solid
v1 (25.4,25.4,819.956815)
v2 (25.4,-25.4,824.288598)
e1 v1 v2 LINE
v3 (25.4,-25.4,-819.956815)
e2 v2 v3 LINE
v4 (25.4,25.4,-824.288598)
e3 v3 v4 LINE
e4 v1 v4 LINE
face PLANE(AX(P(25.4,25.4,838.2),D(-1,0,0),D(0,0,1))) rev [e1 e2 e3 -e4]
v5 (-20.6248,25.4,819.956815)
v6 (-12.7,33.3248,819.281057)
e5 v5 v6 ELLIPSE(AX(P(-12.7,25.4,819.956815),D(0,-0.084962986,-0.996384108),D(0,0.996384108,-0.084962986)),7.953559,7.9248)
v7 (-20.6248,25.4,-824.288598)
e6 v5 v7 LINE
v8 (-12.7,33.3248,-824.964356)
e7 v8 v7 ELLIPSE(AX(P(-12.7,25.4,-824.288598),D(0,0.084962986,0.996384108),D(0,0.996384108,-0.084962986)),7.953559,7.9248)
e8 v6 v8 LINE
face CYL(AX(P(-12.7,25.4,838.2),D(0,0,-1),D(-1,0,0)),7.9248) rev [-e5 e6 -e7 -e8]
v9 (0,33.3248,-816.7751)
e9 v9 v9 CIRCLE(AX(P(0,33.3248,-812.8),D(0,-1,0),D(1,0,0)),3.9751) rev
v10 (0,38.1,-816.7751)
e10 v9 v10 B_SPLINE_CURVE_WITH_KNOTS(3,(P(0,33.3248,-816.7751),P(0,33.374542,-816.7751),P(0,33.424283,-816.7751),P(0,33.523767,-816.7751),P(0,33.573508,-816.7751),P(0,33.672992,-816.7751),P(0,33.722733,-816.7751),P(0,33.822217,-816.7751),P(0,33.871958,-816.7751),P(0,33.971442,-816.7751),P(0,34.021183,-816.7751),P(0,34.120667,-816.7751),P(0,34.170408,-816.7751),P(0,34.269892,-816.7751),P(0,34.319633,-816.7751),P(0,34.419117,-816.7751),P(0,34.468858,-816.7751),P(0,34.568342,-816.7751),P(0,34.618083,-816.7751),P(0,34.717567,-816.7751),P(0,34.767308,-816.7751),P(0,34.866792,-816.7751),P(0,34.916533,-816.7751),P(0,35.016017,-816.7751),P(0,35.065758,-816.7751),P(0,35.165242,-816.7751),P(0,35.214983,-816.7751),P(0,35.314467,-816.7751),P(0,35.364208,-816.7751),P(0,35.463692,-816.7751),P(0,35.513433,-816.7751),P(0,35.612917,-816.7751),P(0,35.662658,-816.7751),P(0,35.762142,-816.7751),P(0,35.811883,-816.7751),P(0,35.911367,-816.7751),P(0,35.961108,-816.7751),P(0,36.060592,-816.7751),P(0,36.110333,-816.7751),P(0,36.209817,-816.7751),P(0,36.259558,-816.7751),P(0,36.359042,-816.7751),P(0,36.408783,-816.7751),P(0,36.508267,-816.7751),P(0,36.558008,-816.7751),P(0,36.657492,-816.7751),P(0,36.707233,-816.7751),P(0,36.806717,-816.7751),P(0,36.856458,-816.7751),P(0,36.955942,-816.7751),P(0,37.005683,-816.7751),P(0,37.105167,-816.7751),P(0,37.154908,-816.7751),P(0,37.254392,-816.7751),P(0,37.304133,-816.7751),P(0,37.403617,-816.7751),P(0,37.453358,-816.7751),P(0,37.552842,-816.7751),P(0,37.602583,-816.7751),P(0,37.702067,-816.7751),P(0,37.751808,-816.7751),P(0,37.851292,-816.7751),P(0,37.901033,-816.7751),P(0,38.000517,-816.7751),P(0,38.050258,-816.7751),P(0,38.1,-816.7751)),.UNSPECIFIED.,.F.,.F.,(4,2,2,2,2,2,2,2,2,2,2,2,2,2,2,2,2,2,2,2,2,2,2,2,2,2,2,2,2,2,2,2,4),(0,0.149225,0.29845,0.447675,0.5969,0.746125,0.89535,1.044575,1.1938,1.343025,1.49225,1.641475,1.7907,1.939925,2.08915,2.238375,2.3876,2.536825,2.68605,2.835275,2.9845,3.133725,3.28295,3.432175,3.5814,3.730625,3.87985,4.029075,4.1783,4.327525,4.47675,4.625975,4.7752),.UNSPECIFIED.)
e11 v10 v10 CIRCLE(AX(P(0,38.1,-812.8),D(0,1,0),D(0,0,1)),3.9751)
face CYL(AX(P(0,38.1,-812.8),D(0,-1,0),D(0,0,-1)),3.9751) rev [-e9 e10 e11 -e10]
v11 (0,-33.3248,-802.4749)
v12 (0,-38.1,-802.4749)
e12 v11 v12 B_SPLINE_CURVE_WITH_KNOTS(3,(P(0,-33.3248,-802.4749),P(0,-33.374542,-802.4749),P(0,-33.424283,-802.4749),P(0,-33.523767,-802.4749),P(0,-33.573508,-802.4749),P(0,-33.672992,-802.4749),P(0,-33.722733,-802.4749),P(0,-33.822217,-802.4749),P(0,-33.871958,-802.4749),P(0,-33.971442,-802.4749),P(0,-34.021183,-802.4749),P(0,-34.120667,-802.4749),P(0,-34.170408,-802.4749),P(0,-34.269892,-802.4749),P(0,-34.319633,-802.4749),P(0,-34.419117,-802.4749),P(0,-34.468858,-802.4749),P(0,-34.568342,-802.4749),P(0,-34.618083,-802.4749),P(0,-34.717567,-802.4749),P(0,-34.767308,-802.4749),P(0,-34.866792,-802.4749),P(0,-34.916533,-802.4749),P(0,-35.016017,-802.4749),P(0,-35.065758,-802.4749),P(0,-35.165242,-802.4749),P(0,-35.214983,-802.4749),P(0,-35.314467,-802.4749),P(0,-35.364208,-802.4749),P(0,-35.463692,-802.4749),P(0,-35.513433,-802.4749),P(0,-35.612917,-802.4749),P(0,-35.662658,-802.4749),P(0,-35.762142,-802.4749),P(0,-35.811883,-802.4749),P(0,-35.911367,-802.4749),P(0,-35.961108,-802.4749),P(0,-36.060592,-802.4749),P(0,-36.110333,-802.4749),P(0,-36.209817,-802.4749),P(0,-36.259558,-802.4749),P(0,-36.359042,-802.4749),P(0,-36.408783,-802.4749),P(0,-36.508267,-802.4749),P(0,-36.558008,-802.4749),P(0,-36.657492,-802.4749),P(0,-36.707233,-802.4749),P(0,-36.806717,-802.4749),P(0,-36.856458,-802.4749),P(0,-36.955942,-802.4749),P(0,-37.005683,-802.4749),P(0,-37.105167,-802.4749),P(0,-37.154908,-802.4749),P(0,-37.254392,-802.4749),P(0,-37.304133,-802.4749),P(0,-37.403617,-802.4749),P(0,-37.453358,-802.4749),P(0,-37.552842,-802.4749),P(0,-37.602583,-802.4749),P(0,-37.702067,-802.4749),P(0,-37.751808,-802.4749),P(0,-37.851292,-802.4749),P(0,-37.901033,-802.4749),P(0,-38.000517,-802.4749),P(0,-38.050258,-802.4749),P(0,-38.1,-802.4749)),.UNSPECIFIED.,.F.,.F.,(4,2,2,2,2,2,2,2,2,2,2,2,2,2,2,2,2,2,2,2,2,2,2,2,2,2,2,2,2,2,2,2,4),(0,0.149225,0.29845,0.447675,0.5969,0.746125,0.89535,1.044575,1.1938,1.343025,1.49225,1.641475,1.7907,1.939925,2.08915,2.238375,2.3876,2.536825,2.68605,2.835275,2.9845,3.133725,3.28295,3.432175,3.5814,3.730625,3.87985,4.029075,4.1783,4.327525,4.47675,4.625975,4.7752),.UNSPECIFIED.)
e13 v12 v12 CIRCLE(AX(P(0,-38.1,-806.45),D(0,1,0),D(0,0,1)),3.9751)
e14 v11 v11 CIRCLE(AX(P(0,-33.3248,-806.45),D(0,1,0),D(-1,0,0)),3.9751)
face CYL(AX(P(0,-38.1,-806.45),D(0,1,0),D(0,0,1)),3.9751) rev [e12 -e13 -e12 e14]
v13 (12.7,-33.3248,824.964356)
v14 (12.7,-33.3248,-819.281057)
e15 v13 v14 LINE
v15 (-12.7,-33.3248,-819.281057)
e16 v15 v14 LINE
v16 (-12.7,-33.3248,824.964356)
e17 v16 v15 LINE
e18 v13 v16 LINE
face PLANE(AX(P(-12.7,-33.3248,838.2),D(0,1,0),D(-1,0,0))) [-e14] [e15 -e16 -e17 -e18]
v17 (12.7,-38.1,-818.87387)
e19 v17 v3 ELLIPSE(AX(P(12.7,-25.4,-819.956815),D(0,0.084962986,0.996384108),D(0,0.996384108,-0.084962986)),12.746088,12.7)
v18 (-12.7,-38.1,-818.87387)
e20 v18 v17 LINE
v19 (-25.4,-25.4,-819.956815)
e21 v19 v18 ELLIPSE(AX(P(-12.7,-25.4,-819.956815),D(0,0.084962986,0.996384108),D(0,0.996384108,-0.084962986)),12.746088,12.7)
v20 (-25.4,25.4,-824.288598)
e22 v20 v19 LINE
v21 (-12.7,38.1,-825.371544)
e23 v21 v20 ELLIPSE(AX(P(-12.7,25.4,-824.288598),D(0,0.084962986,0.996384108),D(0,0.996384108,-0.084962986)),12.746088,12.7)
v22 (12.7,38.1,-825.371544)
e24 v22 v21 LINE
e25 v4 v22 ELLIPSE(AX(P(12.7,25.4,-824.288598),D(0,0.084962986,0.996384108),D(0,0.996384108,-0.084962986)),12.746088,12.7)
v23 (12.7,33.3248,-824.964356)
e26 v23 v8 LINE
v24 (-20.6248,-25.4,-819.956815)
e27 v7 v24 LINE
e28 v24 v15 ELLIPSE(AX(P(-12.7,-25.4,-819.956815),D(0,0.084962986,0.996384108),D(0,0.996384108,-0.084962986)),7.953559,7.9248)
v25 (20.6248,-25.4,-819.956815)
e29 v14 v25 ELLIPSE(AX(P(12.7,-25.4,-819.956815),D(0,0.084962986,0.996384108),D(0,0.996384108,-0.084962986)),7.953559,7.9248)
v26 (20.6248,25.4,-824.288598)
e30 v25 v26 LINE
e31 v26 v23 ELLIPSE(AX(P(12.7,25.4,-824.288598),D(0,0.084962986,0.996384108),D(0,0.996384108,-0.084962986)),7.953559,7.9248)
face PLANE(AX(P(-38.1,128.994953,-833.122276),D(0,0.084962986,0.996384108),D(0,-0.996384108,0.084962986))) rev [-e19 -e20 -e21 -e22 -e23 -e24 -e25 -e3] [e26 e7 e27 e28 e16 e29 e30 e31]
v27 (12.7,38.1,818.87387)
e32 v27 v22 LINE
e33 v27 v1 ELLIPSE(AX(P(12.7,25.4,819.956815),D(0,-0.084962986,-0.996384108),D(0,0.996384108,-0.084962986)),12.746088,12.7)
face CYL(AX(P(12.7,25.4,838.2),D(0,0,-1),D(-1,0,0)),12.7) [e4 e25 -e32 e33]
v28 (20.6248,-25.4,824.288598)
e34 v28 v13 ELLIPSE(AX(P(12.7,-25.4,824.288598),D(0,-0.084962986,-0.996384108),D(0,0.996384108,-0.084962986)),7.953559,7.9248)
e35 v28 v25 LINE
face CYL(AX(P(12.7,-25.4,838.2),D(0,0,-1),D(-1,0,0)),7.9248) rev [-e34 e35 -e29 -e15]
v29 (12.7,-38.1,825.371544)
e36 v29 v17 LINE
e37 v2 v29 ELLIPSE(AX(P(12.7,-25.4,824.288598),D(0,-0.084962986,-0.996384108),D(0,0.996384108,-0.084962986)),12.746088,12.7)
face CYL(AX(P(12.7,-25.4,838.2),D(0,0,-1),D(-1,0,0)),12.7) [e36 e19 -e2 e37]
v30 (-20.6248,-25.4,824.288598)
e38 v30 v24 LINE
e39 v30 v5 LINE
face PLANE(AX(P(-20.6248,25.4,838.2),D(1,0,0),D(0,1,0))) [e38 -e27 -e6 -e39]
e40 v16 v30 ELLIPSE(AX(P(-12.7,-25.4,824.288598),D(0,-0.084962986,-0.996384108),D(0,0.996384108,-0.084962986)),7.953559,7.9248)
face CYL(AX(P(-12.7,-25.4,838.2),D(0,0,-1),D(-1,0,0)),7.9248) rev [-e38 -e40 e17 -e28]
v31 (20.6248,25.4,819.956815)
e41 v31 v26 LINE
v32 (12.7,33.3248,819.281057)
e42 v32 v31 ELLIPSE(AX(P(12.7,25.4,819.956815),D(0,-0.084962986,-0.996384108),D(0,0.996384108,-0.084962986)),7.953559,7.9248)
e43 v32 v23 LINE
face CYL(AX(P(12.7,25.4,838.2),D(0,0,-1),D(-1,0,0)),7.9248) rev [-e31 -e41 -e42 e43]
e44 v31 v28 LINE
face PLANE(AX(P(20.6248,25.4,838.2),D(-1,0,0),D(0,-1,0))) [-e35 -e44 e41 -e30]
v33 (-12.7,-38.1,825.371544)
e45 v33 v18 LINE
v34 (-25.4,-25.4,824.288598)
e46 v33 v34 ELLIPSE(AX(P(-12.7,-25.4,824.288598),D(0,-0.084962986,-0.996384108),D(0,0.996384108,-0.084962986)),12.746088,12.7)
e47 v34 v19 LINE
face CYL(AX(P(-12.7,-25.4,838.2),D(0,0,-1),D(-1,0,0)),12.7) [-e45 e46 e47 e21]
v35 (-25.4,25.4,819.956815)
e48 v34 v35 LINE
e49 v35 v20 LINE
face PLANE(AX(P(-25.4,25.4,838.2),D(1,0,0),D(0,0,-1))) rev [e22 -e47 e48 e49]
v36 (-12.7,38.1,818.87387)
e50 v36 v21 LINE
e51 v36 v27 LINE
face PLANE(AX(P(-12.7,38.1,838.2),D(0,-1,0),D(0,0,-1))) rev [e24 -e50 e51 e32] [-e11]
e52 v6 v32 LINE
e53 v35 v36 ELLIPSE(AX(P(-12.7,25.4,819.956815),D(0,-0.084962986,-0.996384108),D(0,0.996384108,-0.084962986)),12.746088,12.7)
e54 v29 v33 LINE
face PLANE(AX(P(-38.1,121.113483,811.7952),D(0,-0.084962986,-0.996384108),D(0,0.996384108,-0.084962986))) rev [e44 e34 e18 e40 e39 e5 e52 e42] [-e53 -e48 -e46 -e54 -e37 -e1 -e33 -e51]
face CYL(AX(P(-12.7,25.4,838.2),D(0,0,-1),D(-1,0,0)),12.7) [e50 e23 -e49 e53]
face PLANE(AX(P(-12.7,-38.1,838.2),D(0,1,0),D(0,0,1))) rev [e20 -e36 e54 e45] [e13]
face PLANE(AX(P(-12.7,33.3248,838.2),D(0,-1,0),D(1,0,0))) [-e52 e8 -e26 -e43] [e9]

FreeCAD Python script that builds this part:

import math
import FreeCAD as App
import Part
import Sketcher
Q = App.Units.Quantity


def add_polygon(sketch, points):
    """Adds a closed chain of lines whose ends are joined by coincident constraints."""
    first, n = sketch.GeometryCount, len(points)
    for a, b in zip(points, points[1:] + points[:1]):
        sketch.addGeometry(Part.LineSegment(App.Vector(*a, 0), App.Vector(*b, 0)), False)
    for i in range(n):
        sketch.addConstraint(Sketcher.Constraint("Coincident", first + i, 2, first + (i + 1) % n, 1))

doc = App.newDocument("Part")
params = doc.addObject("Spreadsheet::Sheet", "Params")
for row, (alias, value) in enumerate([
    ("sketch1_radius", "0.5 in"),
    ("sketch1_width", "1 in"),
    ("sketch1_height", "2 in"),
    ("sketch1_radius2", "0.312 in"),
    ("pad1_length", "66 in"),
    ("sketch2_height", "1 in"),
    ("pocket1_length", "3 in"),
    ("sketch3_diameter", "0.313 in"),
    ("sketch4_diameter", "0.313 in"),
], start=1):
    params.set(f"A{row}", alias)
    params.set(f"B{row}", "=" + value)
    params.setAlias(f"B{row}", alias)

body = doc.addObject("PartDesign::Body", "Body")

sketch1 = body.newObject("Sketcher::SketchObject", "Sketch")
sketch1.AttachmentSupport = (doc.getObject("XY_Plane"), [""])
sketch1.MapMode = "FlatFace"
sketch1.addGeometry(Part.LineSegment(App.Vector(12.7, 38.1, 0), App.Vector(-12.7, 38.1, 0)), False)
sketch1.addGeometry(Part.ArcOfCircle(Part.Circle(App.Vector(-12.7, 25.4, 0), App.Vector(0, 0, 1), 12.7), math.radians(90), math.radians(180)), False)
sketch1.addGeometry(Part.LineSegment(App.Vector(-25.4, 25.4, 0), App.Vector(-25.4, -25.4, 0)), False)
sketch1.addGeometry(Part.ArcOfCircle(Part.Circle(App.Vector(-12.7, -25.4, 0), App.Vector(0, 0, 1), 12.7), math.radians(180), math.radians(270)), False)
sketch1.addGeometry(Part.LineSegment(App.Vector(-12.7, -38.1, 0), App.Vector(12.7, -38.1, 0)), False)
sketch1.addGeometry(Part.ArcOfCircle(Part.Circle(App.Vector(12.7, -25.4, 0), App.Vector(0, 0, 1), 12.7), math.radians(-90), math.radians(0)), False)
sketch1.addGeometry(Part.LineSegment(App.Vector(25.4, -25.4, 0), App.Vector(25.4, 25.4, 0)), False)
sketch1.addGeometry(Part.ArcOfCircle(Part.Circle(App.Vector(12.7, 25.4, 0), App.Vector(0, 0, 1), 12.7), math.radians(0), math.radians(90)), False)
sketch1.addGeometry(Part.ArcOfCircle(Part.Circle(App.Vector(-12.7, 25.4, 0), App.Vector(0, 0, 1), 7.9248), math.radians(90), math.radians(180)), False)
sketch1.addGeometry(Part.LineSegment(App.Vector(-12.7, 33.3248, 0), App.Vector(12.7, 33.3248, 0)), False)
sketch1.addGeometry(Part.ArcOfCircle(Part.Circle(App.Vector(12.7, 25.4, 0), App.Vector(0, 0, 1), 7.9248), math.radians(0), math.radians(90)), False)
sketch1.addGeometry(Part.LineSegment(App.Vector(20.6248, 25.4, 0), App.Vector(20.6248, -25.4, 0)), False)
sketch1.addGeometry(Part.ArcOfCircle(Part.Circle(App.Vector(12.7, -25.4, 0), App.Vector(0, 0, 1), 7.9248), math.radians(-90), math.radians(0)), False)
sketch1.addGeometry(Part.LineSegment(App.Vector(12.7, -33.3248, 0), App.Vector(-12.7, -33.3248, 0)), False)
sketch1.addGeometry(Part.ArcOfCircle(Part.Circle(App.Vector(-12.7, -25.4, 0), App.Vector(0, 0, 1), 7.9248), math.radians(180), math.radians(270)), False)
sketch1.addGeometry(Part.LineSegment(App.Vector(-20.6248, -25.4, 0), App.Vector(-20.6248, 25.4, 0)), False)
sketch1.addConstraint(Sketcher.Constraint("Tangent", 0, 2, 1, 1))
sketch1.addConstraint(Sketcher.Constraint("Tangent", 1, 2, 2, 1))
sketch1.addConstraint(Sketcher.Constraint("Tangent", 2, 2, 3, 1))
sketch1.addConstraint(Sketcher.Constraint("Tangent", 3, 2, 4, 1))
sketch1.addConstraint(Sketcher.Constraint("Tangent", 4, 2, 5, 1))
sketch1.addConstraint(Sketcher.Constraint("Tangent", 5, 2, 6, 1))
sketch1.addConstraint(Sketcher.Constraint("Tangent", 6, 2, 7, 1))
sketch1.addConstraint(Sketcher.Constraint("Tangent", 7, 2, 0, 1))
sketch1.addConstraint(Sketcher.Constraint("Tangent", 8, 1, 9, 1))
sketch1.addConstraint(Sketcher.Constraint("Tangent", 9, 2, 10, 2))
sketch1.addConstraint(Sketcher.Constraint("Tangent", 10, 1, 11, 1))
sketch1.addConstraint(Sketcher.Constraint("Tangent", 11, 2, 12, 2))
sketch1.addConstraint(Sketcher.Constraint("Tangent", 12, 1, 13, 1))
sketch1.addConstraint(Sketcher.Constraint("Tangent", 13, 2, 14, 2))
sketch1.addConstraint(Sketcher.Constraint("Tangent", 14, 1, 15, 1))
sketch1.addConstraint(Sketcher.Constraint("Tangent", 15, 2, 8, 2))
sketch1.addConstraint(Sketcher.Constraint("Horizontal", 0))
sketch1.addConstraint(Sketcher.Constraint("Vertical", 2))
sketch1.addConstraint(Sketcher.Constraint("Horizontal", 4))
sketch1.addConstraint(Sketcher.Constraint("Vertical", 6))
sketch1.addConstraint(Sketcher.Constraint("Horizontal", 9))
sketch1.addConstraint(Sketcher.Constraint("Vertical", 11))
sketch1.addConstraint(Sketcher.Constraint("Horizontal", 13))
sketch1.addConstraint(Sketcher.Constraint("Vertical", 15))
sketch1.addConstraint(Sketcher.Constraint("Coincident", 8, 3, 1, 3))
sketch1.addConstraint(Sketcher.Constraint("Coincident", 10, 3, 7, 3))
sketch1.addConstraint(Sketcher.Constraint("Coincident", 12, 3, 5, 3))
sketch1.addConstraint(Sketcher.Constraint("Equal", 1, 3))
sketch1.addConstraint(Sketcher.Constraint("Equal", 3, 5))
sketch1.addConstraint(Sketcher.Constraint("Equal", 5, 7))
sketch1.addConstraint(Sketcher.Constraint("Equal", 12, 14))
sketch1.addConstraint(Sketcher.Constraint("Symmetric", 1, 3, 5, 3, -1, 1))
sketch1.addConstraint(Sketcher.Constraint("Radius", 1, Q("0.5 in")))
sketch1.addConstraint(Sketcher.Constraint("DistanceX", 0, 2, 0, 1, Q("1 in")))
sketch1.addConstraint(Sketcher.Constraint("DistanceY", 2, 2, 2, 1, Q("2 in")))
sketch1.addConstraint(Sketcher.Constraint("Radius", 8, Q("0.312 in")))
sketch1.setExpression("Constraints[32]", "Params.sketch1_radius")
sketch1.setExpression("Constraints[33]", "Params.sketch1_width")
sketch1.setExpression("Constraints[34]", "Params.sketch1_height")
sketch1.setExpression("Constraints[35]", "Params.sketch1_radius2")
pad1 = body.newObject("PartDesign::Pad", "Pad")
pad1.Profile = sketch1
pad1.setExpression("Length", "Params.pad1_length")
pad1.Midplane = True

sketch2 = body.newObject("Sketcher::SketchObject", "Sketch001")
sketch2.AttachmentSupport = (doc.getObject("YZ_Plane"), [""])
sketch2.MapMode = "FlatFace"
add_polygon(sketch2, [(-121.113483, 832.450213), (121.113483, 811.7952), (121.113483, 857.850213), (-121.113483, 857.850213)])
add_polygon(sketch2, [(128.994953, -833.122276), (-128.994953, -811.123137), (-128.994953, -858.522276), (128.994953, -858.522276)])
sketch2.addConstraint(Sketcher.Constraint("Vertical", 1))
sketch2.addConstraint(Sketcher.Constraint("Horizontal", 2))
sketch2.addConstraint(Sketcher.Constraint("Vertical", 3))
sketch2.addConstraint(Sketcher.Constraint("Vertical", 5))
sketch2.addConstraint(Sketcher.Constraint("Horizontal", 6))
sketch2.addConstraint(Sketcher.Constraint("Vertical", 7))
sketch2.addConstraint(Sketcher.Constraint("Parallel", 0, 4))
sketch2.addConstraint(Sketcher.Constraint("Equal", 3, 7))
sketch2.addConstraint(Sketcher.Constraint("DistanceY", 3, 2, 3, 1, Q("1 in")))
sketch2.addConstraint(Sketcher.Constraint("DistanceY", 5, 2, 5, 1, 47.399139))
sketch2.addConstraint(Sketcher.Constraint("DistanceY", -1, 1, 0, 2, 811.7952))
sketch2.addConstraint(Sketcher.Constraint("Distance", 0, 243.106012))
sketch2.addConstraint(Sketcher.Constraint("DistanceX", 2, 2, 2, 1, 242.226967))
sketch2.addConstraint(Sketcher.Constraint("DistanceX", 4, 2, 3, 2, 7.88147))
sketch2.addConstraint(Sketcher.Constraint("DistanceY", 4, 2, 3, 2, 1643.57335))
sketch2.addConstraint(Sketcher.Constraint("DistanceX", -1, 1, 0, 2, 121.113483))
sketch2.setExpression("Constraints[16]", "Params.sketch2_height")
pocket1 = body.newObject("PartDesign::Pocket", "Pocket")
pocket1.Profile = sketch2
pocket1.setExpression("Length", "Params.pocket1_length")
pocket1.Midplane = True

sketch3 = body.newObject("Sketcher::SketchObject", "Sketch002")
sketch3.AttachmentSupport = (doc.getObject("XZ_Plane"), [""])
sketch3.MapMode = "FlatFace"
sketch3.addGeometry(Part.Circle(App.Vector(0, -806.45, 0), App.Vector(0, 0, 1), 3.9751), False)
sketch3.addConstraint(Sketcher.Constraint("PointOnObject", 0, 3, -2))
sketch3.addConstraint(Sketcher.Constraint("Diameter", 0, Q("0.313 in")))
sketch3.addConstraint(Sketcher.Constraint("DistanceY", 0, 3, -1, 1, Q("31.75 in")))
sketch3.setExpression("Constraints[1]", "Params.sketch3_diameter")
pocket2 = body.newObject("PartDesign::Pocket", "Pocket001")
pocket2.Profile = sketch3
pocket2.Type = "ThroughAll"
pocket2.Reversed = True

sketch4 = body.newObject("Sketcher::SketchObject", "Sketch003")
sketch4.AttachmentSupport = (doc.getObject("XZ_Plane"), [""])
sketch4.MapMode = "FlatFace"
sketch4.addGeometry(Part.Circle(App.Vector(0, -812.8, 0), App.Vector(0, 0, 1), 3.9751), False)
sketch4.addConstraint(Sketcher.Constraint("PointOnObject", 0, 3, -2))
sketch4.addConstraint(Sketcher.Constraint("Diameter", 0, Q("0.313 in")))
sketch4.addConstraint(Sketcher.Constraint("DistanceY", 0, 3, -1, 1, Q("32 in")))
sketch4.setExpression("Constraints[1]", "Params.sketch4_diameter")
pocket3 = body.newObject("PartDesign::Pocket", "Pocket002")
pocket3.Profile = sketch4
pocket3.Type = "ThroughAll"

doc.recompute()
